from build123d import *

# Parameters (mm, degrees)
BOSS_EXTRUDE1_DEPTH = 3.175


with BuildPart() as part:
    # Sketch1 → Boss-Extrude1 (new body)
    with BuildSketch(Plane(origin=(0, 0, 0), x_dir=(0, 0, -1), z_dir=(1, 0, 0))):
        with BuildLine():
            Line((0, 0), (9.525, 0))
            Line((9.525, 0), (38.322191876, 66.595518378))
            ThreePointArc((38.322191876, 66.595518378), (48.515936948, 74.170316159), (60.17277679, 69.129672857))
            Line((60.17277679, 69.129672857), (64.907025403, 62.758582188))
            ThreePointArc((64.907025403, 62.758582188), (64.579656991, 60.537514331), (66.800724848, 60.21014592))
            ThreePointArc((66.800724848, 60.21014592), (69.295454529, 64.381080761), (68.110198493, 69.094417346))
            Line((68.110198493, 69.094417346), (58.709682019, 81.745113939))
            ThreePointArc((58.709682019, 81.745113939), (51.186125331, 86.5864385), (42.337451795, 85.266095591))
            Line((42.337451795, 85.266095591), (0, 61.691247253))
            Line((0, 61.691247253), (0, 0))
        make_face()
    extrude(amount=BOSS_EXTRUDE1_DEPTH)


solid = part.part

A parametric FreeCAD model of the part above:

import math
import FreeCAD as App
import Part
import Sketcher

V = App.Vector
Q = App.Units.Quantity

doc = App.newDocument("Part")
body = doc.addObject("PartDesign::Body", "Body")

sketch1 = body.newObject("Sketcher::SketchObject", "Sketch")
sketch1.AttachmentSupport = (doc.getObject("YZ_Plane"), [""])
sketch1.MapMode = "FlatFace"
sketch1.addGeometry([
    Part.LineSegment(V(0, 0, 0), V(0, -9.5, 0)),
    Part.LineSegment(V(0, -9.5, 0), V(66.6, -38.3, 0)),
    Part.ArcOfCircle(Part.Circle(V(61.6, -50, 0), V(0, 0, 1), 12.7), math.radians(-53), math.radians(67)),
    Part.LineSegment(V(69.1, -60.2, 0), V(62.8, -64.9, 0)),
    Part.ArcOfCircle(Part.Circle(V(61.5, -65.9, 0), V(0, 0, 1), 1.6), math.radians(37), math.radians(217)),
    Part.ArcOfCircle(Part.Circle(V(65.3, -63, 0), V(0, 0, 1), 6.3), math.radians(-143), math.radians(-53)),
    Part.LineSegment(V(69.1, -68.1, 0), V(81.7, -58.7, 0)),
    Part.ArcOfCircle(Part.Circle(V(74.2, -48.5, 0), V(0, 0, 1), 12.7), math.radians(-53), math.radians(29)),
    Part.LineSegment(V(85.3, -42.3, 0), V(61.7, 0, 0)),
    Part.LineSegment(V(61.7, 0, 0), V(0, 0, 0)),
], False)
sketch1.addConstraint([
    Sketcher.Constraint("Coincident", 0, 2, 1, 1),
    Sketcher.Constraint("Tangent", 1, 2, 2, 2),
    Sketcher.Constraint("Tangent", 2, 1, 3, 1),
    Sketcher.Constraint("Coincident", 3, 2, 4, 1),
    Sketcher.Constraint("Tangent", 4, 2, 5, 1),
    Sketcher.Constraint("Tangent", 5, 2, 6, 1),
    Sketcher.Constraint("Tangent", 6, 2, 7, 1),
    Sketcher.Constraint("Tangent", 7, 2, 8, 1),
    Sketcher.Constraint("Coincident", 8, 2, 9, 1),
    Sketcher.Constraint("Coincident", 9, 2, 0, 1),
    Sketcher.Constraint("Vertical", 0),
    Sketcher.Constraint("Horizontal", 9),
    Sketcher.Constraint("Coincident", 9, 2, -1, 1),
    Sketcher.Constraint("Equal", 2, 7),
    Sketcher.Constraint("Parallel", 3, 6),
    Sketcher.Constraint("Radius", 2, Q("0.5 in")),
    Sketcher.Constraint("Radius", 5, Q("0.25 in")),
    Sketcher.Constraint("Radius", 4, Q("0.0625 in")),
    Sketcher.Constraint("DistanceY", 0, 2, 0, 1, Q("0.375 in")),
    Sketcher.Constraint("Distance", 3, Q("0.3125 in")),
    Sketcher.Constraint("DistanceY", 5, 2, -1, 1, 68.110198),
    Sketcher.Constraint("DistanceX", 5, 3, 1, 2, 1.2885),
    Sketcher.Constraint("DistanceY", 4, 3, 2, 1, 5.681098),
    Sketcher.Constraint("DistanceY", 3, 2, 5, 3, 1.893699),
    Sketcher.Constraint("DistanceY", 4, 2, 3, 2, 1.893699),
    Sketcher.Constraint("DistanceX", 9, 2, 9, 1, 61.691247),
    Sketcher.Constraint("DistanceY", 7, 2, -1, 1, 42.337452),
])
pad1 = body.newObject("PartDesign::Pad", "Pad")
pad1.Profile = sketch1
pad1.Length = Q("0.125 in")

doc.recompute()
